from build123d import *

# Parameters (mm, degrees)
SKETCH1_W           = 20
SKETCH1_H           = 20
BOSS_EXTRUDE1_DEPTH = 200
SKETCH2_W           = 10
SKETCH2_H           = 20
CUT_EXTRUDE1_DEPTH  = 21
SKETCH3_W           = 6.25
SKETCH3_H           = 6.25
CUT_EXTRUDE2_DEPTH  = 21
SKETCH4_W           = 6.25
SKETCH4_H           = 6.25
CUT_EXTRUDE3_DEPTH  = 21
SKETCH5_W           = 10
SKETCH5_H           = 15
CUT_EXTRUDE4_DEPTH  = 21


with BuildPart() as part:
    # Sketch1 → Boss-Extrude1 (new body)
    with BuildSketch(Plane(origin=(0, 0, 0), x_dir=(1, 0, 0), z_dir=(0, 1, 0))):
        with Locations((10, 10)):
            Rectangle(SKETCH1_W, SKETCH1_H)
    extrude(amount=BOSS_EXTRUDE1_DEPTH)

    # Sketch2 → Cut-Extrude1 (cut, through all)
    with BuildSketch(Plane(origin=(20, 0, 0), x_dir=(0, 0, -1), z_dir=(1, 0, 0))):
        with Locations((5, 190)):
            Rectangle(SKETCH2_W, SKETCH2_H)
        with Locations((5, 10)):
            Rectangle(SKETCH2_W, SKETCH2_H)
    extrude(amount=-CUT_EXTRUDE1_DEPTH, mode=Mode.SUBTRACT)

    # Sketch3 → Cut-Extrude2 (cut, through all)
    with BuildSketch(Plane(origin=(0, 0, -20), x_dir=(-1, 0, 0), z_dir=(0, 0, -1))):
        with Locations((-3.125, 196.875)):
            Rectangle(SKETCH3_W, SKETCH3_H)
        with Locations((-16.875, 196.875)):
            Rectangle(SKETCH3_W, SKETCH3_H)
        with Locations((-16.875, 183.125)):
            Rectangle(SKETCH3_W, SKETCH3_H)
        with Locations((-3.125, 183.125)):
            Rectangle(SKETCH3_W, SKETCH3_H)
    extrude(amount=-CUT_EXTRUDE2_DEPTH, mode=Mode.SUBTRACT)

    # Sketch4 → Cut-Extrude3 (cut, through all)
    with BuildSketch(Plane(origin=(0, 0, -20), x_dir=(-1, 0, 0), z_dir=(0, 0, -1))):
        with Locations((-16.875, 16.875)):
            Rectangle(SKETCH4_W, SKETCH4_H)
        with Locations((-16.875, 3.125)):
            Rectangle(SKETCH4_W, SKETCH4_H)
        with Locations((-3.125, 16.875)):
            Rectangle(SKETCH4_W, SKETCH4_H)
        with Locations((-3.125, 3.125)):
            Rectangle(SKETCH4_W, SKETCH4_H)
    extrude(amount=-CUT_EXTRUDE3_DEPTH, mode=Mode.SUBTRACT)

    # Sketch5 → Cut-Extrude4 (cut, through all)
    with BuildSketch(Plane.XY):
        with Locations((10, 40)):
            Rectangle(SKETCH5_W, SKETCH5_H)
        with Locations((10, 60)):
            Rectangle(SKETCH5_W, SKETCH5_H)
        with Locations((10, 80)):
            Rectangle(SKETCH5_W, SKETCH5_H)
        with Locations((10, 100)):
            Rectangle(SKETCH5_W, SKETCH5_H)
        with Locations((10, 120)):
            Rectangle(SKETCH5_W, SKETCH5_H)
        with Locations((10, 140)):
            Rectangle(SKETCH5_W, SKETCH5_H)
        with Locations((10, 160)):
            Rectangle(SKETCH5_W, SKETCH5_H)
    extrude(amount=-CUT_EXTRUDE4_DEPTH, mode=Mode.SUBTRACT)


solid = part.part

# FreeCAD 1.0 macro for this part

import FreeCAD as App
import Part
import Sketcher

doc = App.newDocument("Part")
body = doc.addObject("PartDesign::Body", "Body")

# Sketch on XZ plane
sketch1 = doc.addObject("Sketcher::SketchObject", "Sketch")
body.addObject(sketch1)
sketch1.AttachmentSupport = (doc.XZ_Plane, [""])
sketch1.MapMode = "FlatFace"
sketch1.addGeometry([
    Part.LineSegment(App.Vector(0, -20, 0), App.Vector(0, 0, 0)),
    Part.LineSegment(App.Vector(0, 0, 0), App.Vector(20, 0, 0)),
    Part.LineSegment(App.Vector(20, 0, 0), App.Vector(20, -20, 0)),
    Part.LineSegment(App.Vector(20, -20, 0), App.Vector(0, -20, 0)),
], False)
sketch1.addConstraint([
    Sketcher.Constraint("Coincident", 0, 2, 1, 1),
    Sketcher.Constraint("Coincident", 1, 2, 2, 1),
    Sketcher.Constraint("Coincident", 2, 2, 3, 1),
    Sketcher.Constraint("Coincident", 3, 2, 0, 1),
    Sketcher.Constraint("Vertical", 0),
    Sketcher.Constraint("Horizontal", 1),
    Sketcher.Constraint("Vertical", 2),
    Sketcher.Constraint("Horizontal", 3),
    Sketcher.Constraint("Coincident", 0, 2, -1, 1),
    Sketcher.Constraint("Equal", 3, 0),
    Sketcher.Constraint("DistanceX", 1, 1, 1, 2, 20.0),
])
pad1 = doc.addObject("PartDesign::Pad", "Pad")
body.addObject(pad1)
pad1.Profile = sketch1
pad1.Length = 200
pad1.Reversed = True

# Sketch on YZ plane
sketch2 = doc.addObject("Sketcher::SketchObject", "Sketch001")
body.addObject(sketch2)
sketch2.AttachmentSupport = (doc.YZ_Plane, [""])
sketch2.MapMode = "FlatFace"
sketch2.AttachmentOffset = App.Placement(App.Vector(0, 0, 20), App.Rotation())
sketch2.addGeometry([
    Part.LineSegment(App.Vector(200, 0, 0), App.Vector(180, 0, 0)),  # 0
    Part.LineSegment(App.Vector(180, 0, 0), App.Vector(180, -10, 0)),  # 1
    Part.LineSegment(App.Vector(180, -10, 0), App.Vector(200, -10, 0)),  # 2
    Part.LineSegment(App.Vector(200, -10, 0), App.Vector(200, 0, 0)),  # 3
    Part.LineSegment(App.Vector(20, 0, 0), App.Vector(0, 0, 0)),  # 4
    Part.LineSegment(App.Vector(0, 0, 0), App.Vector(0, -10, 0)),  # 5
    Part.LineSegment(App.Vector(0, -10, 0), App.Vector(20, -10, 0)),  # 6
    Part.LineSegment(App.Vector(20, -10, 0), App.Vector(20, 0, 0)),  # 7
], False)
sketch2.addConstraint([
    Sketcher.Constraint("Coincident", 0, 2, 1, 1),
    Sketcher.Constraint("Coincident", 1, 2, 2, 1),
    Sketcher.Constraint("Coincident", 2, 2, 3, 1),
    Sketcher.Constraint("Coincident", 3, 2, 0, 1),
    Sketcher.Constraint("Coincident", 4, 2, 5, 1),
    Sketcher.Constraint("Coincident", 5, 2, 6, 1),
    Sketcher.Constraint("Coincident", 6, 2, 7, 1),
    Sketcher.Constraint("Coincident", 7, 2, 4, 1),
    Sketcher.Constraint("Horizontal", 0),
    Sketcher.Constraint("Vertical", 1),
    Sketcher.Constraint("Horizontal", 2),
    Sketcher.Constraint("Vertical", 3),
    Sketcher.Constraint("Horizontal", 4),
    Sketcher.Constraint("Vertical", 5),
    Sketcher.Constraint("Horizontal", 6),
    Sketcher.Constraint("Vertical", 7),
    Sketcher.Constraint("Coincident", 4, 2, -1, 1),
    Sketcher.Constraint("PointOnObject", 0, 2, -1),
    Sketcher.Constraint("Horizontal", 2, 2, 5, 2),
    Sketcher.Constraint("Equal", 2, 4),
    Sketcher.Constraint("DistanceX", 0, 2, 0, 1, 20.0),
    Sketcher.Constraint("DistanceY", 1, 2, 1, 1, 10.0),
    Sketcher.Constraint("DistanceX", -1, 1, 0, 2, 180.0),
])
pocket1 = doc.addObject("PartDesign::Pocket", "Pocket")
body.addObject(pocket1)
pocket1.Profile = sketch2
pocket1.Type = "ThroughAll"

# Sketch on XY plane
sketch3 = doc.addObject("Sketcher::SketchObject", "Sketch002")
body.addObject(sketch3)
sketch3.AttachmentSupport = (doc.XY_Plane, [""])
sketch3.MapMode = "FlatFace"
sketch3.AttachmentOffset = App.Placement(App.Vector(0, 0, -20), App.Rotation())
sketch3.addGeometry([
    Part.LineSegment(App.Vector(6, 200, 0), App.Vector(6, 194, 0)),  # 0
    Part.LineSegment(App.Vector(6, 194, 0), App.Vector(0, 194, 0)),  # 1
    Part.LineSegment(App.Vector(0, 194, 0), App.Vector(0, 200, 0)),  # 2
    Part.LineSegment(App.Vector(0, 200, 0), App.Vector(6, 200, 0)),  # 3
    Part.LineSegment(App.Vector(20, 200, 0), App.Vector(20, 194, 0)),  # 4
    Part.LineSegment(App.Vector(20, 194, 0), App.Vector(14, 194, 0)),  # 5
    Part.LineSegment(App.Vector(14, 194, 0), App.Vector(14, 200, 0)),  # 6
    Part.LineSegment(App.Vector(14, 200, 0), App.Vector(20, 200, 0)),  # 7
    Part.LineSegment(App.Vector(20, 186, 0), App.Vector(20, 180, 0)),  # 8
    Part.LineSegment(App.Vector(20, 180, 0), App.Vector(14, 180, 0)),  # 9
    Part.LineSegment(App.Vector(14, 180, 0), App.Vector(14, 186, 0)),  # 10
    Part.LineSegment(App.Vector(14, 186, 0), App.Vector(20, 186, 0)),  # 11
    Part.LineSegment(App.Vector(6, 186, 0), App.Vector(6, 180, 0)),  # 12
    Part.LineSegment(App.Vector(6, 180, 0), App.Vector(0, 180, 0)),  # 13
    Part.LineSegment(App.Vector(0, 180, 0), App.Vector(0, 186, 0)),  # 14
    Part.LineSegment(App.Vector(0, 186, 0), App.Vector(6, 186, 0)),  # 15
], False)
sketch3.addConstraint([
    Sketcher.Constraint("Coincident", 0, 2, 1, 1),
    Sketcher.Constraint("Coincident", 1, 2, 2, 1),
    Sketcher.Constraint("Coincident", 2, 2, 3, 1),
    Sketcher.Constraint("Coincident", 3, 2, 0, 1),
    Sketcher.Constraint("Coincident", 4, 2, 5, 1),
    Sketcher.Constraint("Coincident", 5, 2, 6, 1),
    Sketcher.Constraint("Coincident", 6, 2, 7, 1),
    Sketcher.Constraint("Coincident", 7, 2, 4, 1),
    Sketcher.Constraint("Coincident", 8, 2, 9, 1),
    Sketcher.Constraint("Coincident", 9, 2, 10, 1),
    Sketcher.Constraint("Coincident", 10, 2, 11, 1),
    Sketcher.Constraint("Coincident", 11, 2, 8, 1),
    Sketcher.Constraint("Coincident", 12, 2, 13, 1),
    Sketcher.Constraint("Coincident", 13, 2, 14, 1),
    Sketcher.Constraint("Coincident", 14, 2, 15, 1),
    Sketcher.Constraint("Coincident", 15, 2, 12, 1),
    Sketcher.Constraint("Vertical", 0),
    Sketcher.Constraint("Horizontal", 1),
    Sketcher.Constraint("Vertical", 2),
    Sketcher.Constraint("Horizontal", 3),
    Sketcher.Constraint("Vertical", 4),
    Sketcher.Constraint("Horizontal", 5),
    Sketcher.Constraint("Vertical", 6),
    Sketcher.Constraint("Horizontal", 7),
    Sketcher.Constraint("Vertical", 8),
    Sketcher.Constraint("Horizontal", 9),
    Sketcher.Constraint("Vertical", 10),
    Sketcher.Constraint("Horizontal", 11),
    Sketcher.Constraint("Vertical", 12),
    Sketcher.Constraint("Horizontal", 13),
    Sketcher.Constraint("Vertical", 14),
    Sketcher.Constraint("Horizontal", 15),
    Sketcher.Constraint("PointOnObject", 1, 2, -2),
    Sketcher.Constraint("PointOnObject", 13, 2, -2),
    Sketcher.Constraint("Horizontal", 1, 2, 4, 2),
    Sketcher.Constraint("Horizontal", 3, 2, 6, 2),
    Sketcher.Constraint("Horizontal", 9, 2, 12, 2),
    Sketcher.Constraint("Horizontal", 11, 2, 14, 2),
    Sketcher.Constraint("Vertical", 7, 2, 8, 2),
    Sketcher.Constraint("Vertical", 6, 2, 9, 2),
    Sketcher.Constraint("Vertical", 3, 2, 12, 2),
    Sketcher.Constraint("Equal", 3, 5),
    Sketcher.Constraint("Equal", 15, 0),
    Sketcher.Constraint("Equal", 6, 8),
    Sketcher.Constraint("DistanceY", -1, 1, 2, 2, 200.0),
    Sketcher.Constraint("DistanceX", -1, 1, 4, 2, 20.0),
    Sketcher.Constraint("DistanceY", -1, 1, 8, 2, 180.0),
    Sketcher.Constraint("DistanceX", 1, 2, 1, 1, 6.25),
])
pocket2 = doc.addObject("PartDesign::Pocket", "Pocket001")
body.addObject(pocket2)
pocket2.Profile = sketch3
pocket2.Type = "ThroughAll"
pocket2.Reversed = True

# Sketch on XY plane
sketch4 = doc.addObject("Sketcher::SketchObject", "Sketch003")
body.addObject(sketch4)
sketch4.AttachmentSupport = (doc.XY_Plane, [""])
sketch4.MapMode = "FlatFace"
sketch4.AttachmentOffset = App.Placement(App.Vector(0, 0, -20), App.Rotation())
sketch4.addGeometry([
    Part.LineSegment(App.Vector(20, 20, 0), App.Vector(20, 14, 0)),  # 0
    Part.LineSegment(App.Vector(20, 14, 0), App.Vector(14, 14, 0)),  # 1
    Part.LineSegment(App.Vector(14, 14, 0), App.Vector(14, 20, 0)),  # 2
    Part.LineSegment(App.Vector(14, 20, 0), App.Vector(20, 20, 0)),  # 3
    Part.LineSegment(App.Vector(20, 6, 0), App.Vector(20, 0, 0)),  # 4
    Part.LineSegment(App.Vector(20, 0, 0), App.Vector(14, 0, 0)),  # 5
    Part.LineSegment(App.Vector(14, 0, 0), App.Vector(14, 6, 0)),  # 6
    Part.LineSegment(App.Vector(14, 6, 0), App.Vector(20, 6, 0)),  # 7
    Part.LineSegment(App.Vector(6, 20, 0), App.Vector(6, 14, 0)),  # 8
    Part.LineSegment(App.Vector(6, 14, 0), App.Vector(0, 14, 0)),  # 9
    Part.LineSegment(App.Vector(0, 14, 0), App.Vector(0, 20, 0)),  # 10
    Part.LineSegment(App.Vector(0, 20, 0), App.Vector(6, 20, 0)),  # 11
    Part.LineSegment(App.Vector(6, 6, 0), App.Vector(6, 0, 0)),  # 12
    Part.LineSegment(App.Vector(6, 0, 0), App.Vector(0, 0, 0)),  # 13
    Part.LineSegment(App.Vector(0, 0, 0), App.Vector(0, 6, 0)),  # 14
    Part.LineSegment(App.Vector(0, 6, 0), App.Vector(6, 6, 0)),  # 15
], False)
sketch4.addConstraint([
    Sketcher.Constraint("Coincident", 0, 2, 1, 1),
    Sketcher.Constraint("Coincident", 1, 2, 2, 1),
    Sketcher.Constraint("Coincident", 2, 2, 3, 1),
    Sketcher.Constraint("Coincident", 3, 2, 0, 1),
    Sketcher.Constraint("Coincident", 4, 2, 5, 1),
    Sketcher.Constraint("Coincident", 5, 2, 6, 1),
    Sketcher.Constraint("Coincident", 6, 2, 7, 1),
    Sketcher.Constraint("Coincident", 7, 2, 4, 1),
    Sketcher.Constraint("Coincident", 8, 2, 9, 1),
    Sketcher.Constraint("Coincident", 9, 2, 10, 1),
    Sketcher.Constraint("Coincident", 10, 2, 11, 1),
    Sketcher.Constraint("Coincident", 11, 2, 8, 1),
    Sketcher.Constraint("Coincident", 12, 2, 13, 1),
    Sketcher.Constraint("Coincident", 13, 2, 14, 1),
    Sketcher.Constraint("Coincident", 14, 2, 15, 1),
    Sketcher.Constraint("Coincident", 15, 2, 12, 1),
    Sketcher.Constraint("Vertical", 0),
    Sketcher.Constraint("Horizontal", 1),
    Sketcher.Constraint("Vertical", 2),
    Sketcher.Constraint("Horizontal", 3),
    Sketcher.Constraint("Vertical", 4),
    Sketcher.Constraint("Horizontal", 5),
    Sketcher.Constraint("Vertical", 6),
    Sketcher.Constraint("Horizontal", 7),
    Sketcher.Constraint("Vertical", 8),
    Sketcher.Constraint("Horizontal", 9),
    Sketcher.Constraint("Vertical", 10),
    Sketcher.Constraint("Horizontal", 11),
    Sketcher.Constraint("Vertical", 12),
    Sketcher.Constraint("Horizontal", 13),
    Sketcher.Constraint("Vertical", 14),
    Sketcher.Constraint("Horizontal", 15),
    Sketcher.Constraint("Coincident", 13, 2, -1, 1),
    Sketcher.Constraint("PointOnObject", 4, 2, -1),
    Sketcher.Constraint("PointOnObject", 9, 2, -2),
    Sketcher.Constraint("Horizontal", 1, 2, 8, 2),
    Sketcher.Constraint("Horizontal", 3, 2, 10, 2),
    Sketcher.Constraint("Horizontal", 7, 2, 14, 2),
    Sketcher.Constraint("Vertical", 3, 2, 4, 2),
    Sketcher.Constraint("Vertical", 2, 2, 5, 2),
    Sketcher.Constraint("Vertical", 11, 2, 12, 2),
    Sketcher.Constraint("Equal", 7, 9),
    Sketcher.Constraint("Equal", 15, 0),
    Sketcher.Constraint("Equal", 2, 4),
    Sketcher.Constraint("DistanceX", -1, 1, 0, 2, 20.0),
    Sketcher.Constraint("DistanceY", -1, 1, 2, 2, 20.0),
    Sketcher.Constraint("DistanceX", 1, 2, 1, 1, 6.25),
])
pocket3 = doc.addObject("PartDesign::Pocket", "Pocket002")
body.addObject(pocket3)
pocket3.Profile = sketch4
pocket3.Type = "ThroughAll"
pocket3.Reversed = True

# Sketch on XY plane
sketch5 = doc.addObject("Sketcher::SketchObject", "Sketch004")
body.addObject(sketch5)
sketch5.AttachmentSupport = (doc.XY_Plane, [""])
sketch5.MapMode = "FlatFace"
sketch5.addGeometry([
    Part.LineSegment(App.Vector(5, 48, 0), App.Vector(5, 32, 0)),  # 0
    Part.LineSegment(App.Vector(5, 32, 0), App.Vector(15, 32, 0)),  # 1
    Part.LineSegment(App.Vector(15, 32, 0), App.Vector(15, 48, 0)),  # 2
    Part.LineSegment(App.Vector(15, 48, 0), App.Vector(5, 48, 0)),  # 3
    Part.LineSegment(App.Vector(5, 68, 0), App.Vector(5, 52, 0)),  # 4
    Part.LineSegment(App.Vector(5, 52, 0), App.Vector(15, 52, 0)),  # 5
    Part.LineSegment(App.Vector(15, 52, 0), App.Vector(15, 68, 0)),  # 6
    Part.LineSegment(App.Vector(15, 68, 0), App.Vector(5, 68, 0)),  # 7
    Part.LineSegment(App.Vector(5, 88, 0), App.Vector(5, 72, 0)),  # 8
    Part.LineSegment(App.Vector(5, 72, 0), App.Vector(15, 72, 0)),  # 9
    Part.LineSegment(App.Vector(15, 72, 0), App.Vector(15, 88, 0)),  # 10
    Part.LineSegment(App.Vector(15, 88, 0), App.Vector(5, 88, 0)),  # 11
    Part.LineSegment(App.Vector(5, 108, 0), App.Vector(5, 92, 0)),  # 12
    Part.LineSegment(App.Vector(5, 92, 0), App.Vector(15, 92, 0)),  # 13
    Part.LineSegment(App.Vector(15, 92, 0), App.Vector(15, 108, 0)),  # 14
    Part.LineSegment(App.Vector(15, 108, 0), App.Vector(5, 108, 0)),  # 15
    Part.LineSegment(App.Vector(5, 128, 0), App.Vector(5, 112, 0)),  # 16
    Part.LineSegment(App.Vector(5, 112, 0), App.Vector(15, 112, 0)),  # 17
    Part.LineSegment(App.Vector(15, 112, 0), App.Vector(15, 128, 0)),  # 18
    Part.LineSegment(App.Vector(15, 128, 0), App.Vector(5, 128, 0)),  # 19
    Part.LineSegment(App.Vector(5, 148, 0), App.Vector(5, 132, 0)),  # 20
    Part.LineSegment(App.Vector(5, 132, 0), App.Vector(15, 132, 0)),  # 21
    Part.LineSegment(App.Vector(15, 132, 0), App.Vector(15, 148, 0)),  # 22
    Part.LineSegment(App.Vector(15, 148, 0), App.Vector(5, 148, 0)),  # 23
    Part.LineSegment(App.Vector(5, 168, 0), App.Vector(5, 152, 0)),  # 24
    Part.LineSegment(App.Vector(5, 152, 0), App.Vector(15, 152, 0)),  # 25
    Part.LineSegment(App.Vector(15, 152, 0), App.Vector(15, 168, 0)),  # 26
    Part.LineSegment(App.Vector(15, 168, 0), App.Vector(5, 168, 0)),  # 27
], False)
sketch5.addConstraint([
    Sketcher.Constraint("Coincident", 0, 2, 1, 1),
    Sketcher.Constraint("Coincident", 1, 2, 2, 1),
    Sketcher.Constraint("Coincident", 2, 2, 3, 1),
    Sketcher.Constraint("Coincident", 3, 2, 0, 1),
    Sketcher.Constraint("Coincident", 4, 2, 5, 1),
    Sketcher.Constraint("Coincident", 5, 2, 6, 1),
    Sketcher.Constraint("Coincident", 6, 2, 7, 1),
    Sketcher.Constraint("Coincident", 7, 2, 4, 1),
    Sketcher.Constraint("Coincident", 8, 2, 9, 1),
    Sketcher.Constraint("Coincident", 9, 2, 10, 1),
    Sketcher.Constraint("Coincident", 10, 2, 11, 1),
    Sketcher.Constraint("Coincident", 11, 2, 8, 1),
    Sketcher.Constraint("Coincident", 12, 2, 13, 1),
    Sketcher.Constraint("Coincident", 13, 2, 14, 1),
    Sketcher.Constraint("Coincident", 14, 2, 15, 1),
    Sketcher.Constraint("Coincident", 15, 2, 12, 1),
    Sketcher.Constraint("Coincident", 16, 2, 17, 1),
    Sketcher.Constraint("Coincident", 17, 2, 18, 1),
    Sketcher.Constraint("Coincident", 18, 2, 19, 1),
    Sketcher.Constraint("Coincident", 19, 2, 16, 1),
    Sketcher.Constraint("Coincident", 20, 2, 21, 1),
    Sketcher.Constraint("Coincident", 21, 2, 22, 1),
    Sketcher.Constraint("Coincident", 22, 2, 23, 1),
    Sketcher.Constraint("Coincident", 23, 2, 20, 1),
    Sketcher.Constraint("Coincident", 24, 2, 25, 1),
    Sketcher.Constraint("Coincident", 25, 2, 26, 1),
    Sketcher.Constraint("Coincident", 26, 2, 27, 1),
    Sketcher.Constraint("Coincident", 27, 2, 24, 1),
    Sketcher.Constraint("Vertical", 0),
    Sketcher.Constraint("Horizontal", 1),
    Sketcher.Constraint("Vertical", 2),
    Sketcher.Constraint("Horizontal", 3),
    Sketcher.Constraint("Vertical", 4),
    Sketcher.Constraint("Horizontal", 5),
    Sketcher.Constraint("Vertical", 6),
    Sketcher.Constraint("Horizontal", 7),
    Sketcher.Constraint("Vertical", 8),
    Sketcher.Constraint("Horizontal", 9),
    Sketcher.Constraint("Vertical", 10),
    Sketcher.Constraint("Horizontal", 11),
    Sketcher.Constraint("Vertical", 12),
    Sketcher.Constraint("Horizontal", 13),
    Sketcher.Constraint("Vertical", 14),
    Sketcher.Constraint("Horizontal", 15),
    Sketcher.Constraint("Vertical", 16),
    Sketcher.Constraint("Horizontal", 17),
    Sketcher.Constraint("Vertical", 18),
    Sketcher.Constraint("Horizontal", 19),
    Sketcher.Constraint("Vertical", 20),
    Sketcher.Constraint("Horizontal", 21),
    Sketcher.Constraint("Vertical", 22),
    Sketcher.Constraint("Horizontal", 23),
    Sketcher.Constraint("Vertical", 24),
    Sketcher.Constraint("Horizontal", 25),
    Sketcher.Constraint("Vertical", 26),
    Sketcher.Constraint("Horizontal", 27),
    Sketcher.Constraint("Vertical", 3, 2, 4, 2),
    Sketcher.Constraint("Vertical", 2, 2, 5, 2),
    Sketcher.Constraint("Vertical", 7, 2, 8, 2),
    Sketcher.Constraint("Vertical", 6, 2, 9, 2),
    Sketcher.Constraint("Vertical", 11, 2, 12, 2),
    Sketcher.Constraint("Vertical", 10, 2, 13, 2),
    Sketcher.Constraint("Vertical", 15, 2, 16, 2),
    Sketcher.Constraint("Vertical", 14, 2, 17, 2),
    Sketcher.Constraint("Vertical", 19, 2, 20, 2),
    Sketcher.Constraint("Vertical", 18, 2, 21, 2),
    Sketcher.Constraint("Vertical", 23, 2, 24, 2),
    Sketcher.Constraint("Vertical", 22, 2, 25, 2),
    Sketcher.Constraint("Equal", 2, 4),
    Sketcher.Constraint("Equal", 6, 8),
    Sketcher.Constraint("Equal", 10, 12),
    Sketcher.Constraint("Equal", 14, 16),
    Sketcher.Constraint("Equal", 18, 20),
    Sketcher.Constraint("Equal", 22, 24),
    Sketcher.Constraint("DistanceX", 1, 1, 1, 2, 10.0),
    Sketcher.Constraint("DistanceY", 0, 2, 0, 1, 15.0),
    Sketcher.Constraint("DistanceX", -1, 1, 0, 2, 5.0),
    Sketcher.Constraint("DistanceY", 3, 2, 4, 2, 5.0),
    Sketcher.Constraint("DistanceY", 7, 2, 8, 2, 5.0),
    Sketcher.Constraint("DistanceY", 11, 2, 12, 2, 5.0),
    Sketcher.Constraint("DistanceY", 15, 2, 16, 2, 5.0),
    Sketcher.Constraint("DistanceY", 19, 2, 20, 2, 5.0),
    Sketcher.Constraint("DistanceY", 23, 2, 24, 2, 5.0),
    Sketcher.Constraint("DistanceY", -1, 1, 0, 2, 32.5),
])
pocket4 = doc.addObject("PartDesign::Pocket", "Pocket003")
body.addObject(pocket4)
pocket4.Profile = sketch5
pocket4.Type = "ThroughAll"

doc.recompute()
